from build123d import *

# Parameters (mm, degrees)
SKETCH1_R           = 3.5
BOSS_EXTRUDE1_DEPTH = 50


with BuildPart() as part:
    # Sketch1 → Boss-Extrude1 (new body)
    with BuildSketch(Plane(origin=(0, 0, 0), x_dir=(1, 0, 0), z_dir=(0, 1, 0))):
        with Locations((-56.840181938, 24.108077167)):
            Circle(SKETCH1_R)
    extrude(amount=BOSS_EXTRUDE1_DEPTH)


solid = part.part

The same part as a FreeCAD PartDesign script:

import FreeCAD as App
import Part
import Sketcher
from FreeCAD import Vector
Q = App.Units.Quantity

doc = App.newDocument("Part")
body = doc.addObject("PartDesign::Body", "Body")

sketch1 = doc.addObject("Sketcher::SketchObject", "Sketch")
body.addObject(sketch1)
sketch1.AttachmentSupport = (doc.XZ_Plane, [""])
sketch1.MapMode = "FlatFace"
sketch1.addGeometry(Part.Circle(Vector(-56.8, -24.1, 0), Vector(0, 0, 1), 3.5), False)
sketch1.addConstraint([
    Sketcher.Constraint("Diameter", 0, Q("7 mm")),
    Sketcher.Constraint("DistanceX", 0, 3, -1, 1, Q("56.840182 mm")),
    Sketcher.Constraint("DistanceY", 0, 3, -1, 1, Q("24.108077 mm")),
])
pad1 = doc.addObject("PartDesign::Pad", "Pad")
body.addObject(pad1)
pad1.Profile = sketch1
pad1.Length = 50
pad1.Reversed = True

doc.recompute()
